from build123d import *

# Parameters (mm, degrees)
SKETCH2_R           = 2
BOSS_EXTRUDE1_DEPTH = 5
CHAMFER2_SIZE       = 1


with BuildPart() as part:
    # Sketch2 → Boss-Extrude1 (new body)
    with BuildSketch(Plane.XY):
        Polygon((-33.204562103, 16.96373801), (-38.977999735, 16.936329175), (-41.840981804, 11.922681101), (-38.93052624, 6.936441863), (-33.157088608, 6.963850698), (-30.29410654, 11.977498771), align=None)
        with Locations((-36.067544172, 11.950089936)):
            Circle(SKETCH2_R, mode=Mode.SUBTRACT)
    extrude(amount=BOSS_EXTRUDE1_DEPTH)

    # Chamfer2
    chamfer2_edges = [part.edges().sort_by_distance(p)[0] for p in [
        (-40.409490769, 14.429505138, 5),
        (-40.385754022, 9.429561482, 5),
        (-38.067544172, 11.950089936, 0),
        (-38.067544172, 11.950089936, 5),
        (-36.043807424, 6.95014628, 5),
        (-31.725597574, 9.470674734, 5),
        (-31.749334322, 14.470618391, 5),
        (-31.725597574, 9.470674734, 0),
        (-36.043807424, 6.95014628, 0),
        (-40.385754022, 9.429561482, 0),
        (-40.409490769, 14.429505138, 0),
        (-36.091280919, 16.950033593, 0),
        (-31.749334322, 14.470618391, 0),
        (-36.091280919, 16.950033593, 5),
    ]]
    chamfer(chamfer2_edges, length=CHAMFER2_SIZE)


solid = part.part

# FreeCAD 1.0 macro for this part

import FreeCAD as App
import Part
import Sketcher


def edges_at(feature, points):
    """Names of the edges that pass closest to the given points."""
    edges = feature.Shape.Edges
    near = lambda p: min(range(len(edges)), key=lambda i: edges[i].distToShape(Part.Vertex(*p))[0])
    return sorted({f"Edge{near(p) + 1}" for p in points})

doc = App.newDocument("Part")
body = doc.addObject("PartDesign::Body", "Body")

# Sketch on XY plane
sketch1 = body.newObject("Sketcher::SketchObject", "Sketch")
sketch1.AttachmentSupport = (doc.getObject("XY_Plane"), [""])
sketch1.MapMode = "FlatFace"
sketch1.addGeometry([
    Part.LineSegment(App.Vector(-33.2, 17, 0), App.Vector(-39, 16.9, 0)),  # 0
    Part.LineSegment(App.Vector(-39, 16.9, 0), App.Vector(-41.8, 11.9, 0)),  # 1
    Part.LineSegment(App.Vector(-41.8, 11.9, 0), App.Vector(-38.9, 6.9, 0)),  # 2
    Part.LineSegment(App.Vector(-38.9, 6.9, 0), App.Vector(-33.2, 7, 0)),  # 3
    Part.LineSegment(App.Vector(-33.2, 7, 0), App.Vector(-30.3, 12, 0)),  # 4
    Part.LineSegment(App.Vector(-30.3, 12, 0), App.Vector(-33.2, 17, 0)),  # 5
    Part.Circle(App.Vector(-36.1, 12, 0), App.Vector(0, 0, 1), 2),  # 6
], False)
sketch1.addConstraint([
    Sketcher.Constraint("Coincident", 0, 2, 1, 1),
    Sketcher.Constraint("Coincident", 1, 2, 2, 1),
    Sketcher.Constraint("Coincident", 2, 2, 3, 1),
    Sketcher.Constraint("Coincident", 3, 2, 4, 1),
    Sketcher.Constraint("Coincident", 4, 2, 5, 1),
    Sketcher.Constraint("Coincident", 5, 2, 0, 1),
    Sketcher.Constraint("Parallel", 0, 3),
    Sketcher.Constraint("Parallel", 1, 4),
    Sketcher.Constraint("Parallel", 2, 5),
    Sketcher.Constraint("Equal", 0, 1),
    Sketcher.Constraint("Equal", 1, 2),
    Sketcher.Constraint("Equal", 2, 3),
    Sketcher.Constraint("Diameter", 6, 4.0),
    Sketcher.Constraint("DistanceX", 0, 2, -1, 1, 38.978),
    Sketcher.Constraint("DistanceY", -1, 1, 4, 2, 11.977499),
    Sketcher.Constraint("DistanceY", -1, 1, 6, 3, 11.95009),
    Sketcher.Constraint("DistanceY", -1, 1, 0, 2, 16.936329),
    Sketcher.Constraint("DistanceX", 1, 2, -1, 1, 41.840982),
    Sketcher.Constraint("DistanceY", -1, 1, 1, 2, 11.922681),
    Sketcher.Constraint("DistanceY", -1, 1, 2, 2, 6.936442),
    Sketcher.Constraint("DistanceX", 6, 3, -1, 1, 36.067544),
])
pad1 = body.newObject("PartDesign::Pad", "Pad")
pad1.Profile = sketch1
pad1.Length = 5
doc.recompute()

chamfer = body.newObject("PartDesign::Chamfer", "Chamfer")
chamfer.Base = (pad1, edges_at(pad1, [
    (-40.409, 14.43, 5),
    (-40.386, 9.43, 5),
    (-38.068, 11.95, 0),
    (-38.068, 11.95, 5),
    (-36.044, 6.95, 5),
    (-31.726, 9.471, 5),
    (-31.749, 14.471, 5),
    (-31.726, 9.471, 0),
    (-36.044, 6.95, 0),
    (-40.386, 9.43, 0),
    (-40.409, 14.43, 0),
    (-36.091, 16.95, 0),
    (-31.749, 14.471, 0),
    (-36.091, 16.95, 5),
]))
chamfer.Size = 1

doc.recompute()
